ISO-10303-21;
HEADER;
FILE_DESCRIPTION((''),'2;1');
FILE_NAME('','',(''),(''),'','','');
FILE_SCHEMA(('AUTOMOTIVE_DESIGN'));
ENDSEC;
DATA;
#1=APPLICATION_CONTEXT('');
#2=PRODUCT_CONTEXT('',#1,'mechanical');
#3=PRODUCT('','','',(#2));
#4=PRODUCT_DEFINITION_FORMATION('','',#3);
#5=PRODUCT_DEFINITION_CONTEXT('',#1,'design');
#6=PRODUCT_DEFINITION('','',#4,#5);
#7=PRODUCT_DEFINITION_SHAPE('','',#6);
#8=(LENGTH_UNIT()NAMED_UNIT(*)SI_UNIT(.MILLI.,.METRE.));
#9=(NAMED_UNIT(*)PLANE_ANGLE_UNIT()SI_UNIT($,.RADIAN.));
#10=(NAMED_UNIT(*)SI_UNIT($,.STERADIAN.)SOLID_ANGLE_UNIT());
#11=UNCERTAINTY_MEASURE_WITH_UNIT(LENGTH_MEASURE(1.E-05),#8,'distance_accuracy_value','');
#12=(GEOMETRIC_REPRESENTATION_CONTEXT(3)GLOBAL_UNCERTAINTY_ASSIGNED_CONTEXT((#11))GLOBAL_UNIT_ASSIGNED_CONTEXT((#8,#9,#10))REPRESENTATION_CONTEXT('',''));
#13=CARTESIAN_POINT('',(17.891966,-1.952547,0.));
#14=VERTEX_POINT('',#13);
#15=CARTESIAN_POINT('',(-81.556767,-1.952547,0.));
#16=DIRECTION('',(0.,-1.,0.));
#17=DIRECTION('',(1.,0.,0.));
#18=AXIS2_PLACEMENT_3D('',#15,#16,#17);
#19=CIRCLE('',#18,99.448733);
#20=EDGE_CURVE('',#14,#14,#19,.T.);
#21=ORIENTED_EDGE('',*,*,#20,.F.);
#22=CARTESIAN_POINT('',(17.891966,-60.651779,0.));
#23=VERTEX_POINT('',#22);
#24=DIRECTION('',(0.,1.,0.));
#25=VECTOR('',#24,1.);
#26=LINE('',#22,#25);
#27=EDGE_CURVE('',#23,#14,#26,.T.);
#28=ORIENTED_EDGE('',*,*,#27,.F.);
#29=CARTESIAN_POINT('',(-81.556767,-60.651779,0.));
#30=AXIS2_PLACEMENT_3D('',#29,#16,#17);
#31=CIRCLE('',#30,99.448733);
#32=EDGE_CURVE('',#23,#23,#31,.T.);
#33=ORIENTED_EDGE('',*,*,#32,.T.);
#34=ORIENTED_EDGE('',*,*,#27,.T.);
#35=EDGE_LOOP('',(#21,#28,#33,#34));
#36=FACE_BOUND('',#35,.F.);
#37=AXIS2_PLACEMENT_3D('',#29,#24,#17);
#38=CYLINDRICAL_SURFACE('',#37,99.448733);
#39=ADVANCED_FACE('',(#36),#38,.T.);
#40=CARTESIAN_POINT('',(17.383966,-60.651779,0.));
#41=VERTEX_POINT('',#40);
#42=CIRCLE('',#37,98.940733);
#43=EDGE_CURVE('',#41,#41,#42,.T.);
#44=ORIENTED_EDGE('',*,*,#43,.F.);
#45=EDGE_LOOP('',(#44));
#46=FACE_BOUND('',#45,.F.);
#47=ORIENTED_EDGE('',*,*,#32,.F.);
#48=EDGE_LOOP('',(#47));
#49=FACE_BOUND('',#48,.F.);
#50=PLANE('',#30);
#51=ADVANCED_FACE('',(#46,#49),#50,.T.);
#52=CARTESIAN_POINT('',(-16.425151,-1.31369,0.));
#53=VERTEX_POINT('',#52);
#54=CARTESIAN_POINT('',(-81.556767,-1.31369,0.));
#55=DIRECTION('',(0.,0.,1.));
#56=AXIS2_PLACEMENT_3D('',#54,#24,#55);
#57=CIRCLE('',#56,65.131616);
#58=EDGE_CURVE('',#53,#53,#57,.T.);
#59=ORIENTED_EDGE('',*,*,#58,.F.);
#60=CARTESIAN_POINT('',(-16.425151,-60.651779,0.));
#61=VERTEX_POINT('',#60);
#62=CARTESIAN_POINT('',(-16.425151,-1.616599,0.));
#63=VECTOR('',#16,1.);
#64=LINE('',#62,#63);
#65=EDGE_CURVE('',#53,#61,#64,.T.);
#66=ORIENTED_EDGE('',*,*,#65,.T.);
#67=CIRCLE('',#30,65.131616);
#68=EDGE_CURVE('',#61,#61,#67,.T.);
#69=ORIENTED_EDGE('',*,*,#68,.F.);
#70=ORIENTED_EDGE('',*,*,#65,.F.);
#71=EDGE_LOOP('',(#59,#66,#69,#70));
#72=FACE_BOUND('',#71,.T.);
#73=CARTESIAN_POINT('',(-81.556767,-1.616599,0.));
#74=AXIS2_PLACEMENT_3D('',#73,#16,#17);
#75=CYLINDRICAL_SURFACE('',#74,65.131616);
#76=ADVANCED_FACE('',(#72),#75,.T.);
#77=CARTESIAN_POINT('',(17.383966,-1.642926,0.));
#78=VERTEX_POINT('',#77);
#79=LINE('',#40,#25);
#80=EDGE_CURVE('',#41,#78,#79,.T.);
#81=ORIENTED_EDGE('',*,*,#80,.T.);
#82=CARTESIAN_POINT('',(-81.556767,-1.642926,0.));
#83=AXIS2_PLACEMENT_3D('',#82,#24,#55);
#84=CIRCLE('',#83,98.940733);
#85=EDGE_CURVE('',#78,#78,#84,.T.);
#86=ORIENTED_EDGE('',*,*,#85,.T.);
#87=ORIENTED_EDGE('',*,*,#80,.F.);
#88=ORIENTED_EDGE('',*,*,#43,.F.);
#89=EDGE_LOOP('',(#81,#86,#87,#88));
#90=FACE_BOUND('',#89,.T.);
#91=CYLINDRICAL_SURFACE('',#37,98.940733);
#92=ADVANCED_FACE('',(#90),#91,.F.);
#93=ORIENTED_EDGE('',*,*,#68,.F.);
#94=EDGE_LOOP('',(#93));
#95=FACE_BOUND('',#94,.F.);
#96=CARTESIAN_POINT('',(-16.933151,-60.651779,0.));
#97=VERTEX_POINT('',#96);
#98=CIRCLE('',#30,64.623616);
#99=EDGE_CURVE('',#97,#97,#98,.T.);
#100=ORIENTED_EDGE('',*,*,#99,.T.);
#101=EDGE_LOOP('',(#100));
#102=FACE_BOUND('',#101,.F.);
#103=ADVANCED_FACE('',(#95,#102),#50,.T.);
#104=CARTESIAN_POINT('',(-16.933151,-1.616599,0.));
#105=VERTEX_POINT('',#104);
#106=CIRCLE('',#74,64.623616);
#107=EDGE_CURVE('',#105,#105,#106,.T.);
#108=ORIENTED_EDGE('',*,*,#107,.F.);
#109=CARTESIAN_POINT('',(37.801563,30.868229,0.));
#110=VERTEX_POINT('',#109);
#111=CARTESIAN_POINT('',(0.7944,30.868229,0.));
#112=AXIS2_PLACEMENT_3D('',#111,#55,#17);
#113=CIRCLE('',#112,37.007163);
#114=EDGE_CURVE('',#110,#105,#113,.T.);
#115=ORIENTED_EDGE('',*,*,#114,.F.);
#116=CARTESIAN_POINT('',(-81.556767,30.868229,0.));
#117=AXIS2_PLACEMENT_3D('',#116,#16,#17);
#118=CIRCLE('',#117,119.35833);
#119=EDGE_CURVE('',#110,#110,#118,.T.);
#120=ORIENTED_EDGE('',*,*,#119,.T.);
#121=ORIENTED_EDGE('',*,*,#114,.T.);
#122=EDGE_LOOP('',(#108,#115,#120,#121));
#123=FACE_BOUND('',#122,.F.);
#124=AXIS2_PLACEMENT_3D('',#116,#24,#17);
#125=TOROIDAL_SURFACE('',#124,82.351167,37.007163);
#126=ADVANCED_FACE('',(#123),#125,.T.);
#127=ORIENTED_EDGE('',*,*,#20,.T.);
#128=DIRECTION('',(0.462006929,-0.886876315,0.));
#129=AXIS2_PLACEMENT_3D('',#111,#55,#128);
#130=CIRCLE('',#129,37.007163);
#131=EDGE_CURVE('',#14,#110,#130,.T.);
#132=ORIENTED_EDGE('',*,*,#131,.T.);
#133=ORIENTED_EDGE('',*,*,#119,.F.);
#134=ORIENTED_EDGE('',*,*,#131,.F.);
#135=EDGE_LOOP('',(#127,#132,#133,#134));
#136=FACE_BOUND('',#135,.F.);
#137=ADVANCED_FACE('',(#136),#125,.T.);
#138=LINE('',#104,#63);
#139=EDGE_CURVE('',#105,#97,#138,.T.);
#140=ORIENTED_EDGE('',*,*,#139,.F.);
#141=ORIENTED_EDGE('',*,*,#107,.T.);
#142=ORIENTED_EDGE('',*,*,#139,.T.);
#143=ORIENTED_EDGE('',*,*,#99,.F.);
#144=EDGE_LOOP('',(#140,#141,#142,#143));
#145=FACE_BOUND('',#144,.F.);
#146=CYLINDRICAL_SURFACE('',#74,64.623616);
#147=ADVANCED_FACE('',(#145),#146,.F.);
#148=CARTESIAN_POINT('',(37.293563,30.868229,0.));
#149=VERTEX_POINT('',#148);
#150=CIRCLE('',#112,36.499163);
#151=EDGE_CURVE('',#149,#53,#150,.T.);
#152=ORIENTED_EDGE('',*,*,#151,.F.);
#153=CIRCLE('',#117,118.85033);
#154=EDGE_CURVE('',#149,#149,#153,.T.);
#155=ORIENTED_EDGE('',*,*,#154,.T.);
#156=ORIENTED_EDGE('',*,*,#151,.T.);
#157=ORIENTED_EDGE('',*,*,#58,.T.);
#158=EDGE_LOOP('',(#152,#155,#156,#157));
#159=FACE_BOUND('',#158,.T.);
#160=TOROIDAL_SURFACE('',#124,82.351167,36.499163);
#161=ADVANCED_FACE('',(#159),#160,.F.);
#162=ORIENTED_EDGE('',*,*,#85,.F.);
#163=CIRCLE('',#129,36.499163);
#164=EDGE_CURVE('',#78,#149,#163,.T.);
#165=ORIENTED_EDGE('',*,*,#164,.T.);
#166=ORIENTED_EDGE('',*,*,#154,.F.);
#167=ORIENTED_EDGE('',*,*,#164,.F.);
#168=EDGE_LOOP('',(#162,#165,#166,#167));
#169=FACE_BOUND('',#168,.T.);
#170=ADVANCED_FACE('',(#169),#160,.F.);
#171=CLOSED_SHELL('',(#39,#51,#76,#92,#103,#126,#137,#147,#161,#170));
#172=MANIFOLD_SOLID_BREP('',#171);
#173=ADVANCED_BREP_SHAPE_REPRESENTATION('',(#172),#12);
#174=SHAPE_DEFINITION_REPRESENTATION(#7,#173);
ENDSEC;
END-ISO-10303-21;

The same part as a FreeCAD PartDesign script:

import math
import FreeCAD as App
import Part
import Sketcher

V = App.Vector
Q = App.Units.Quantity


def faces_at(feature, points):
    """Names of the faces that lie closest to the given points."""
    faces = feature.Shape.Faces
    near = lambda p: min(range(len(faces)), key=lambda i: faces[i].distToShape(Part.Vertex(*p))[0])
    return sorted({f"Face{near(p) + 1}" for p in points})

doc = App.newDocument("Part")
body = doc.addObject("PartDesign::Body", "Body")

# Sketch on XY plane
sketch1 = body.newObject("Sketcher::SketchObject", "Sketch")
sketch1.AttachmentSupport = (doc.getObject("XY_Plane"), [""])
sketch1.MapMode = "FlatFace"
sketch1.addGeometry([
    Part.ArcOfCircle(Part.Circle(V(1, 31, 0), V(0, 0, 1), 37), math.radians(-62), math.radians(0)),  # 0
    Part.ArcOfCircle(Part.Circle(V(1, 31, 0), V(0, 0, 1), 37), math.radians(0), math.radians(241)),  # 1
    Part.LineSegment(V(-17, -2, 0), V(-17, -61, 0)),  # 2
    Part.LineSegment(V(-17, -61, 0), V(18, -61, 0)),  # 3
    Part.LineSegment(V(18, -61, 0), V(18, -2, 0)),  # 4
], False)
sketch1.addGeometry(Part.LineSegment(V(-82, 31, 0), V(-82, -61, 0)), True)  # axis
sketch1.addConstraint([
    Sketcher.Constraint("Tangent", 0, 2, 1, 1),
    Sketcher.Constraint("Coincident", 1, 2, 2, 1),
    Sketcher.Constraint("Coincident", 2, 2, 3, 1),
    Sketcher.Constraint("Coincident", 3, 2, 4, 1),
    Sketcher.Constraint("Coincident", 4, 2, 0, 1),
    Sketcher.Constraint("Vertical", 2),
    Sketcher.Constraint("Horizontal", 3),
    Sketcher.Constraint("Vertical", 4),
    Sketcher.Constraint("Vertical", 5),
    Sketcher.Constraint("Equal", 0, 1),
    Sketcher.Constraint("Horizontal", 1, 3, 0, 2),
    Sketcher.Constraint("Horizontal", 0, 2, 5, 1),
    Sketcher.Constraint("Horizontal", 3, 2, 5, 2),
    Sketcher.Constraint("Radius", 0, 37.007163),
    Sketcher.Constraint("DistanceY", 2, 2, 2, 1, 59.035181),
    Sketcher.Constraint("DistanceY", 5, 2, 5, 1, 91.520008),
    Sketcher.Constraint("DistanceX", -1, 1, 0, 3, 0.7944),
    Sketcher.Constraint("DistanceY", 1, 2, -1, 1, 1.616599),
    Sketcher.Constraint("DistanceX", 3, 1, 3, 2, 34.825117),
    Sketcher.Constraint("DistanceX", 5, 1, -1, 1, 81.556767),
])
revolution = body.newObject("PartDesign::Revolution", "Revolution")
revolution.Profile = sketch1
revolution.ReferenceAxis = (sketch1, ["Axis0"])
revolution.Angle = 360
doc.recompute()

thickness = body.newObject("PartDesign::Thickness", "Thickness")
thickness.Base = (revolution, faces_at(revolution, [(-1.998, -60.652, 0)]))
thickness.Value = Q("0.02 in")
thickness.Reversed = True
thickness.Join = "Intersection"

doc.recompute()
